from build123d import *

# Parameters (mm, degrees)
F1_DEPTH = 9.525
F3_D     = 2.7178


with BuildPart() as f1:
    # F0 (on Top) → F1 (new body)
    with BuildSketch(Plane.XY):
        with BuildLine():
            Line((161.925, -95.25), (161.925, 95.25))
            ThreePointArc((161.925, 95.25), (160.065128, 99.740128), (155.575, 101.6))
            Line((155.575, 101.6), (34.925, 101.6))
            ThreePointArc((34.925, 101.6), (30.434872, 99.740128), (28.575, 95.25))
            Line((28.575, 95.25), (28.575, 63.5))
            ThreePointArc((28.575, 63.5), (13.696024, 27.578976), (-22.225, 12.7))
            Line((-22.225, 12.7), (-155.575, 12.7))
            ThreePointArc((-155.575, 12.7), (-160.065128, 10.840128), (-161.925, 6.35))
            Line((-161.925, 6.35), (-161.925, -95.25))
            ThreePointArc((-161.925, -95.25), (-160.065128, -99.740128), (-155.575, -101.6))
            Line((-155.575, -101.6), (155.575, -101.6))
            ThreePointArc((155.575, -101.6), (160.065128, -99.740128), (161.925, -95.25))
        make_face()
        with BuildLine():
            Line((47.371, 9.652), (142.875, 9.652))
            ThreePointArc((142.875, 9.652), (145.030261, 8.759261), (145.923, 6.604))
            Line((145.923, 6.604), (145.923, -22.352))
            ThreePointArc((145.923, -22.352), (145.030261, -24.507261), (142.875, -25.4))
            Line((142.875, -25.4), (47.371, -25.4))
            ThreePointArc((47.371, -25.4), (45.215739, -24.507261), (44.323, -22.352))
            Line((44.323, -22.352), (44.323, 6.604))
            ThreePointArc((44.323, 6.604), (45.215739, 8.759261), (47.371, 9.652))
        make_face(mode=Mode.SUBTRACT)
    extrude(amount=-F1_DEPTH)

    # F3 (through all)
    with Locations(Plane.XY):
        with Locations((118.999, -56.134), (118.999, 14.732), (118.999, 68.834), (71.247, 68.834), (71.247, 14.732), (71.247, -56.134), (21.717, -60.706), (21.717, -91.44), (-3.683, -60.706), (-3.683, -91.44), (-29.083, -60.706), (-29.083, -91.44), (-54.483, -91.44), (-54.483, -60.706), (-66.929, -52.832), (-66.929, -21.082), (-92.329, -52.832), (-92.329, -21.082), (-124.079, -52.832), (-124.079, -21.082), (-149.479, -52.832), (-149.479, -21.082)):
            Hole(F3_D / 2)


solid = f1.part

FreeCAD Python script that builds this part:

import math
import FreeCAD as App
import Part
import Sketcher
Q = App.Units.Quantity

doc = App.newDocument("Part")
body = doc.addObject("PartDesign::Body", "Body")

sketch1 = body.newObject("Sketcher::SketchObject", "Sketch")
sketch1.AttachmentSupport = (doc.getObject("XY_Plane"), [""])
sketch1.MapMode = "FlatFace"
sketch1.addGeometry([
    Part.LineSegment(App.Vector(161.9, -95.2, 0), App.Vector(161.9, 95.2, 0)),
    Part.ArcOfCircle(Part.Circle(App.Vector(155.6, 95.2, 0), App.Vector(0, 0, 1), 6.4), math.radians(0), math.radians(90)),
    Part.LineSegment(App.Vector(155.6, 101.6, 0), App.Vector(34.9, 101.6, 0)),
    Part.ArcOfCircle(Part.Circle(App.Vector(34.9, 95.2, 0), App.Vector(0, 0, 1), 6.4), math.radians(90), math.radians(180)),
    Part.LineSegment(App.Vector(28.6, 95.2, 0), App.Vector(28.6, 63.5, 0)),
    Part.ArcOfCircle(Part.Circle(App.Vector(-22.2, 63.5, 0), App.Vector(0, 0, 1), 50.8), math.radians(-90), math.radians(0)),
    Part.LineSegment(App.Vector(-22.2, 12.7, 0), App.Vector(-155.6, 12.7, 0)),
    Part.ArcOfCircle(Part.Circle(App.Vector(-155.6, 6.3, 0), App.Vector(0, 0, 1), 6.4), math.radians(90), math.radians(180)),
    Part.LineSegment(App.Vector(-161.9, 6.3, 0), App.Vector(-161.9, -95.2, 0)),
    Part.ArcOfCircle(Part.Circle(App.Vector(-155.6, -95.2, 0), App.Vector(0, 0, 1), 6.4), math.radians(-180), math.radians(-90)),
    Part.LineSegment(App.Vector(-155.6, -101.6, 0), App.Vector(155.6, -101.6, 0)),
    Part.ArcOfCircle(Part.Circle(App.Vector(155.6, -95.2, 0), App.Vector(0, 0, 1), 6.4), math.radians(-90), math.radians(0)),
    Part.ArcOfCircle(Part.Circle(App.Vector(47.4, 6.6, 0), App.Vector(0, 0, 1), 3), math.radians(90), math.radians(180)),
    Part.LineSegment(App.Vector(47.4, 9.7, 0), App.Vector(142.9, 9.7, 0)),
    Part.ArcOfCircle(Part.Circle(App.Vector(142.9, 6.6, 0), App.Vector(0, 0, 1), 3), math.radians(0), math.radians(90)),
    Part.LineSegment(App.Vector(145.9, 6.6, 0), App.Vector(145.9, -22.4, 0)),
    Part.ArcOfCircle(Part.Circle(App.Vector(142.9, -22.4, 0), App.Vector(0, 0, 1), 3), math.radians(-90), math.radians(0)),
    Part.LineSegment(App.Vector(142.9, -25.4, 0), App.Vector(47.4, -25.4, 0)),
    Part.ArcOfCircle(Part.Circle(App.Vector(47.4, -22.4, 0), App.Vector(0, 0, 1), 3), math.radians(-180), math.radians(-90)),
    Part.LineSegment(App.Vector(44.3, -22.4, 0), App.Vector(44.3, 6.6, 0)),
], False)
sketch1.addConstraint([
    Sketcher.Constraint("Tangent", 0, 2, 1, 1),
    Sketcher.Constraint("Tangent", 1, 2, 2, 1),
    Sketcher.Constraint("Tangent", 2, 2, 3, 1),
    Sketcher.Constraint("Tangent", 3, 2, 4, 1),
    Sketcher.Constraint("Tangent", 4, 2, 5, 2),
    Sketcher.Constraint("Tangent", 5, 1, 6, 1),
    Sketcher.Constraint("Tangent", 6, 2, 7, 1),
    Sketcher.Constraint("Tangent", 7, 2, 8, 1),
    Sketcher.Constraint("Tangent", 8, 2, 9, 1),
    Sketcher.Constraint("Tangent", 9, 2, 10, 1),
    Sketcher.Constraint("Tangent", 10, 2, 11, 1),
    Sketcher.Constraint("Tangent", 11, 2, 0, 1),
    Sketcher.Constraint("Tangent", 12, 1, 13, 1),
    Sketcher.Constraint("Tangent", 13, 2, 14, 2),
    Sketcher.Constraint("Tangent", 14, 1, 15, 1),
    Sketcher.Constraint("Tangent", 15, 2, 16, 2),
    Sketcher.Constraint("Tangent", 16, 1, 17, 1),
    Sketcher.Constraint("Tangent", 17, 2, 18, 2),
    Sketcher.Constraint("Tangent", 18, 1, 19, 1),
    Sketcher.Constraint("Tangent", 19, 2, 12, 2),
    Sketcher.Constraint("Vertical", 0),
    Sketcher.Constraint("Horizontal", 2),
    Sketcher.Constraint("Vertical", 4),
    Sketcher.Constraint("Horizontal", 6),
    Sketcher.Constraint("Vertical", 8),
    Sketcher.Constraint("Horizontal", 10),
    Sketcher.Constraint("Horizontal", 13),
    Sketcher.Constraint("Vertical", 15),
    Sketcher.Constraint("Horizontal", 17),
    Sketcher.Constraint("Vertical", 19),
    Sketcher.Constraint("Equal", 1, 3),
    Sketcher.Constraint("Equal", 3, 7),
    Sketcher.Constraint("Equal", 7, 9),
    Sketcher.Constraint("Equal", 9, 11),
    Sketcher.Constraint("Equal", 12, 14),
    Sketcher.Constraint("Equal", 14, 16),
    Sketcher.Constraint("Equal", 16, 18),
    Sketcher.Constraint("Symmetric", 1, 3, 9, 3, -1, 1),
    Sketcher.Constraint("Radius", 5, Q("2.0000001 in")),
    Sketcher.Constraint("DistanceY", 8, 2, 8, 1, Q("4 in")),
    Sketcher.Constraint("Radius", 1, Q("0.25 in")),
    Sketcher.Constraint("Radius", 12, Q("0.1200001 in")),
    Sketcher.Constraint("DistanceY", 0, 1, 0, 2, Q("7.5 in")),
    Sketcher.Constraint("DistanceY", 16, 1, -1, 1, Q("1 in")),
    Sketcher.Constraint("DistanceX", 5, 3, 1, 3, Q("7.0000001 in")),
    Sketcher.Constraint("DistanceX", 6, 2, 6, 1, Q("5.25 in")),
    Sketcher.Constraint("DistanceX", 13, 1, 13, 2, Q("3.76 in")),
    Sketcher.Constraint("DistanceY", 15, 2, 15, 1, Q("1.14 in")),
    Sketcher.Constraint("DistanceX", 14, 3, 1, 3, Q("0.5000001 in")),
])
pad1 = body.newObject("PartDesign::Pad", "Pad")
pad1.Profile = sketch1
pad1.Length = Q("0.375 in")
pad1.Reversed = True

sketch2 = body.newObject("Sketcher::SketchObject", "Sketch001")
sketch2.AttachmentSupport = (doc.getObject("XY_Plane"), [""])
sketch2.MapMode = "FlatFace"
sketch2.addGeometry([
    Part.Circle(App.Vector(119, -56.1, 0), App.Vector(0, 0, 1), 1.4),
    Part.Circle(App.Vector(119, 14.7, 0), App.Vector(0, 0, 1), 1.4),
    Part.Circle(App.Vector(119, 68.8, 0), App.Vector(0, 0, 1), 1.4),
    Part.Circle(App.Vector(71.2, 68.8, 0), App.Vector(0, 0, 1), 1.4),
    Part.Circle(App.Vector(71.2, 14.7, 0), App.Vector(0, 0, 1), 1.4),
    Part.Circle(App.Vector(71.2, -56.1, 0), App.Vector(0, 0, 1), 1.4),
    Part.Circle(App.Vector(21.7, -60.7, 0), App.Vector(0, 0, 1), 1.4),
    Part.Circle(App.Vector(21.7, -91.4, 0), App.Vector(0, 0, 1), 1.4),
    Part.Circle(App.Vector(-3.7, -60.7, 0), App.Vector(0, 0, 1), 1.4),
    Part.Circle(App.Vector(-3.7, -91.4, 0), App.Vector(0, 0, 1), 1.4),
    Part.Circle(App.Vector(-29.1, -60.7, 0), App.Vector(0, 0, 1), 1.4),
    Part.Circle(App.Vector(-29.1, -91.4, 0), App.Vector(0, 0, 1), 1.4),
    Part.Circle(App.Vector(-54.5, -91.4, 0), App.Vector(0, 0, 1), 1.4),
    Part.Circle(App.Vector(-54.5, -60.7, 0), App.Vector(0, 0, 1), 1.4),
    Part.Circle(App.Vector(-66.9, -52.8, 0), App.Vector(0, 0, 1), 1.4),
    Part.Circle(App.Vector(-66.9, -21.1, 0), App.Vector(0, 0, 1), 1.4),
    Part.Circle(App.Vector(-92.3, -52.8, 0), App.Vector(0, 0, 1), 1.4),
    Part.Circle(App.Vector(-92.3, -21.1, 0), App.Vector(0, 0, 1), 1.4),
    Part.Circle(App.Vector(-124.1, -52.8, 0), App.Vector(0, 0, 1), 1.4),
    Part.Circle(App.Vector(-124.1, -21.1, 0), App.Vector(0, 0, 1), 1.4),
    Part.Circle(App.Vector(-149.5, -52.8, 0), App.Vector(0, 0, 1), 1.4),
    Part.Circle(App.Vector(-149.5, -21.1, 0), App.Vector(0, 0, 1), 1.4),
], False)
sketch2.addConstraint([
    Sketcher.Constraint("Equal", 0, 1),
    Sketcher.Constraint("Equal", 1, 2),
    Sketcher.Constraint("Equal", 2, 3),
    Sketcher.Constraint("Equal", 3, 4),
    Sketcher.Constraint("Equal", 4, 5),
    Sketcher.Constraint("Equal", 5, 6),
    Sketcher.Constraint("Equal", 6, 7),
    Sketcher.Constraint("Equal", 7, 8),
    Sketcher.Constraint("Equal", 8, 9),
    Sketcher.Constraint("Equal", 9, 10),
    Sketcher.Constraint("Equal", 10, 11),
    Sketcher.Constraint("Equal", 11, 12),
    Sketcher.Constraint("Equal", 12, 13),
    Sketcher.Constraint("Equal", 13, 14),
    Sketcher.Constraint("Equal", 14, 15),
    Sketcher.Constraint("Equal", 15, 16),
    Sketcher.Constraint("Equal", 16, 17),
    Sketcher.Constraint("Equal", 17, 18),
    Sketcher.Constraint("Equal", 18, 19),
    Sketcher.Constraint("Equal", 19, 20),
    Sketcher.Constraint("Equal", 20, 21),
    Sketcher.Constraint("Horizontal", 2, 3, 3, 3),
    Sketcher.Constraint("Horizontal", 1, 3, 4, 3),
    Sketcher.Constraint("Horizontal", 0, 3, 5, 3),
    Sketcher.Constraint("Horizontal", 6, 3, 8, 3),
    Sketcher.Constraint("Horizontal", 7, 3, 9, 3),
    Sketcher.Constraint("Horizontal", 8, 3, 10, 3),
    Sketcher.Constraint("Horizontal", 9, 3, 11, 3),
    Sketcher.Constraint("Horizontal", 11, 3, 12, 3),
    Sketcher.Constraint("Horizontal", 10, 3, 13, 3),
    Sketcher.Constraint("Horizontal", 14, 3, 16, 3),
    Sketcher.Constraint("Horizontal", 15, 3, 17, 3),
    Sketcher.Constraint("Horizontal", 16, 3, 18, 3),
    Sketcher.Constraint("Horizontal", 17, 3, 19, 3),
    Sketcher.Constraint("Horizontal", 18, 3, 20, 3),
    Sketcher.Constraint("Horizontal", 19, 3, 21, 3),
    Sketcher.Constraint("Vertical", 0, 3, 1, 3),
    Sketcher.Constraint("Vertical", 1, 3, 2, 3),
    Sketcher.Constraint("Vertical", 3, 3, 4, 3),
    Sketcher.Constraint("Vertical", 4, 3, 5, 3),
    Sketcher.Constraint("Vertical", 6, 3, 7, 3),
    Sketcher.Constraint("Vertical", 8, 3, 9, 3),
    Sketcher.Constraint("Vertical", 10, 3, 11, 3),
    Sketcher.Constraint("Vertical", 12, 3, 13, 3),
    Sketcher.Constraint("Vertical", 14, 3, 15, 3),
    Sketcher.Constraint("Vertical", 16, 3, 17, 3),
    Sketcher.Constraint("Vertical", 18, 3, 19, 3),
    Sketcher.Constraint("Vertical", 20, 3, 21, 3),
    Sketcher.Constraint("Diameter", 0, Q("0.107 in")),
    Sketcher.Constraint("DistanceX", 8, 3, 6, 3, Q("1 in")),
    Sketcher.Constraint("DistanceX", 10, 3, 8, 3, Q("1 in")),
    Sketcher.Constraint("DistanceX", 12, 3, 11, 3, Q("1 in")),
    Sketcher.Constraint("DistanceX", 16, 3, 14, 3, Q("1 in")),
    Sketcher.Constraint("DistanceX", 20, 3, 18, 3, Q("1 in")),
    Sketcher.Constraint("DistanceY", 7, 3, -1, 1, Q("3.6 in")),
    Sketcher.Constraint("DistanceY", 6, 3, 3, 3, Q("5.1 in")),
    Sketcher.Constraint("DistanceY", 0, 3, -1, 1, Q("2.21 in")),
    Sketcher.Constraint("DistanceY", -1, 1, 1, 3, Q("0.58 in")),
    Sketcher.Constraint("DistanceY", -1, 1, 2, 3, Q("2.71 in")),
    Sketcher.Constraint("DistanceY", 14, 3, -1, 1, Q("2.08 in")),
    Sketcher.Constraint("DistanceY", 15, 3, -1, 1, Q("0.83 in")),
    Sketcher.Constraint("DistanceX", 3, 3, 2, 3, Q("1.88 in")),
    Sketcher.Constraint("DistanceX", 6, 3, 5, 3, Q("1.95 in")),
    Sketcher.Constraint("DistanceX", 14, 3, 13, 3, Q("0.49 in")),
    Sketcher.Constraint("DistanceX", 18, 3, 16, 3, Q("1.25 in")),
    Sketcher.Constraint("DistanceX", -1, 1, 0, 3, Q("4.685 in")),
])
doc.recompute()
hole = body.newObject("PartDesign::Hole", "Hole")
hole.Profile = sketch2
hole.ThreadType = "None"
hole.Diameter = Q("0.107 in")
hole.DepthType = "ThroughAll"

doc.recompute()
